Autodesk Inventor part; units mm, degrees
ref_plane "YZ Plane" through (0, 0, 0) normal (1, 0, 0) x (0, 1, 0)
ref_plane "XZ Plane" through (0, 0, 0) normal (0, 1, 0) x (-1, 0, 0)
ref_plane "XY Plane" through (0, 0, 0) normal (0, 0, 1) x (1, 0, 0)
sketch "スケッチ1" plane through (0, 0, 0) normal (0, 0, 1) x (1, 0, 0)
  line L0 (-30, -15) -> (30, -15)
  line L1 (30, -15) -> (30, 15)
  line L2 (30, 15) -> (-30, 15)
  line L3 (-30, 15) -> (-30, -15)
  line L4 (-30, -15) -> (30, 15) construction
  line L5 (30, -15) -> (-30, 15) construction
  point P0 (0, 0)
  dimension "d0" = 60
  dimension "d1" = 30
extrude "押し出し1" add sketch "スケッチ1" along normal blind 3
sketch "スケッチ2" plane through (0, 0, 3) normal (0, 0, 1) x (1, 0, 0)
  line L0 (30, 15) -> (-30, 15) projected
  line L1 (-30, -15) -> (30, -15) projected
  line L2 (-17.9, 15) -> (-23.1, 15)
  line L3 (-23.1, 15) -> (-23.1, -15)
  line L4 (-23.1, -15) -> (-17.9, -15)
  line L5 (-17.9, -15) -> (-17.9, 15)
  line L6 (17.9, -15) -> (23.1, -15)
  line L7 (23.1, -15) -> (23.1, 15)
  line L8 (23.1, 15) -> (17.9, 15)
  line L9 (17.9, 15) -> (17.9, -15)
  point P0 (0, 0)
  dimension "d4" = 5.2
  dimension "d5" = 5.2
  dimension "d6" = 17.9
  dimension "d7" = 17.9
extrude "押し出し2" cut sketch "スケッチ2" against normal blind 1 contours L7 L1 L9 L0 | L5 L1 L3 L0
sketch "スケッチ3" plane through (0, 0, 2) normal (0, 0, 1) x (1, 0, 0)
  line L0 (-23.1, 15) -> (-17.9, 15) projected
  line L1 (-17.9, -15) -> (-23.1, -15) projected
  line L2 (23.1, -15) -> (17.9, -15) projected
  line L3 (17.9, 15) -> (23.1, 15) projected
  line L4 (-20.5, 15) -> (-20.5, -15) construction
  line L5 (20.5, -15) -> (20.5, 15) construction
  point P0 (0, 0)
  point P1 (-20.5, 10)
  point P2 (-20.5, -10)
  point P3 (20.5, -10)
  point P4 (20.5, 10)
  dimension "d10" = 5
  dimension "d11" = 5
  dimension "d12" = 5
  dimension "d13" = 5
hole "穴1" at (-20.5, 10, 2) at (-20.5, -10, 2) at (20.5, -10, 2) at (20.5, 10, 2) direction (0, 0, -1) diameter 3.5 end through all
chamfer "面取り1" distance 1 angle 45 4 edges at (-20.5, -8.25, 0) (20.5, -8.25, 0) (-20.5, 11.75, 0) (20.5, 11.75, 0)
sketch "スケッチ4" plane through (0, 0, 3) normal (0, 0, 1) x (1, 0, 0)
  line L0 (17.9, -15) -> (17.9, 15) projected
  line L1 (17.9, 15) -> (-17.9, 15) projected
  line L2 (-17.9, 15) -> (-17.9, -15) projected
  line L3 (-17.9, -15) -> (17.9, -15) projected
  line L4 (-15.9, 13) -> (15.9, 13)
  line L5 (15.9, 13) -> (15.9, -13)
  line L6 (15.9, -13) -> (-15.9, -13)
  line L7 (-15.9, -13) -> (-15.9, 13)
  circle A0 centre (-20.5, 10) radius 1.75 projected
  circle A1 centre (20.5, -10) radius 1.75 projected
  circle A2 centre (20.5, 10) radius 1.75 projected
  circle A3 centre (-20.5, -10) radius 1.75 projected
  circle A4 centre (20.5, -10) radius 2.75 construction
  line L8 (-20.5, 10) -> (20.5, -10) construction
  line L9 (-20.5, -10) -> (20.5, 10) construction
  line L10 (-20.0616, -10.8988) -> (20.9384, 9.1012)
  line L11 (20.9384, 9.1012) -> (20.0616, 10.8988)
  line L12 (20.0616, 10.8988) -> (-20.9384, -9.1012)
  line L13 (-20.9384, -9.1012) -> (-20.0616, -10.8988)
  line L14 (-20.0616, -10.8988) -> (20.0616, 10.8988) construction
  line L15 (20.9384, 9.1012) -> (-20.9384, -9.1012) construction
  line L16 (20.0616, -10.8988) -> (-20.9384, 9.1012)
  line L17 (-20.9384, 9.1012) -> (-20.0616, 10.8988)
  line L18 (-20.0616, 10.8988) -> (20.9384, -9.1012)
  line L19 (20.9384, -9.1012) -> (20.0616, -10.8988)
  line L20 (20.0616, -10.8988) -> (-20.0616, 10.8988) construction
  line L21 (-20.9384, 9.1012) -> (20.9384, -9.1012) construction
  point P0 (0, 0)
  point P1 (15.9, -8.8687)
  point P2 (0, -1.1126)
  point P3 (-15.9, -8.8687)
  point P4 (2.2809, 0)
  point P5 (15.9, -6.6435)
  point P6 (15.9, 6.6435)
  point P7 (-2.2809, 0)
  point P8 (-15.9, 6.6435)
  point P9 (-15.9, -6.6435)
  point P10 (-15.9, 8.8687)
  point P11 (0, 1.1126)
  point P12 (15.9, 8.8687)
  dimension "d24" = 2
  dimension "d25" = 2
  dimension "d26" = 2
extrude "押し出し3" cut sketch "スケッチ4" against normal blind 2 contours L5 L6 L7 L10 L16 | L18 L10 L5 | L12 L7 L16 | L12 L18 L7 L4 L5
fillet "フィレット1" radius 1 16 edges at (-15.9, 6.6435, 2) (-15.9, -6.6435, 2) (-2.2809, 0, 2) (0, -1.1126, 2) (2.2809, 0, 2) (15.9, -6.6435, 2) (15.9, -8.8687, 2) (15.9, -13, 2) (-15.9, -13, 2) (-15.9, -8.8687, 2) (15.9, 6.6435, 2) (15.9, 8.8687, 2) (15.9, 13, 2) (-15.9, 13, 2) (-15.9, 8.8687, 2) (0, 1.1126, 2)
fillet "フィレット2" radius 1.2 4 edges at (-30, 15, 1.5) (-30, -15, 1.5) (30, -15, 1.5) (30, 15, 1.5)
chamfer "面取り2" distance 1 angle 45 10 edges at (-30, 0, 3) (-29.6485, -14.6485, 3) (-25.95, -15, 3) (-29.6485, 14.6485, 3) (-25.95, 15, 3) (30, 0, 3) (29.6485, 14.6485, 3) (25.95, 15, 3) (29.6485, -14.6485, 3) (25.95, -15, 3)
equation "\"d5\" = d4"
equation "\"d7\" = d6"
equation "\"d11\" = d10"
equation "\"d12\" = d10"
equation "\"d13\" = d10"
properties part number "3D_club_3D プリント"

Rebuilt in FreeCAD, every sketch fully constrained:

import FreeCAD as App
import Part
import Sketcher

V = App.Vector


def edges_at(feature, points):
    """Names of the edges that pass closest to the given points."""
    edges = feature.Shape.Edges
    near = lambda p: min(range(len(edges)), key=lambda i: edges[i].distToShape(Part.Vertex(*p))[0])
    return sorted({f"Edge{near(p) + 1}" for p in points})


def add_polygon(sketch, points):
    """Adds a closed chain of lines whose ends are joined by coincident constraints."""
    first, n = sketch.GeometryCount, len(points)
    for a, b in zip(points, points[1:] + points[:1]):
        sketch.addGeometry(Part.LineSegment(App.Vector(*a, 0), App.Vector(*b, 0)), False)
    for i in range(n):
        sketch.addConstraint(Sketcher.Constraint("Coincident", first + i, 2, first + (i + 1) % n, 1))

doc = App.newDocument("Part")
body = doc.addObject("PartDesign::Body", "Body")

sketch1 = body.newObject("Sketcher::SketchObject", "Sketch")
sketch1.AttachmentSupport = (doc.getObject("XY_Plane"), [""])
sketch1.MapMode = "FlatFace"
add_polygon(sketch1, [(-30, 15), (-30, -15), (30, -15), (30, 15)])
sketch1.addConstraint([
    Sketcher.Constraint("Vertical", 0),
    Sketcher.Constraint("Horizontal", 1),
    Sketcher.Constraint("Vertical", 2),
    Sketcher.Constraint("Horizontal", 3),
    Sketcher.Constraint("Symmetric", 0, 2, 2, 2, -1, 1),
    Sketcher.Constraint("DistanceX", 1, 1, 1, 2, 60.0),
    Sketcher.Constraint("DistanceY", 0, 2, 0, 1, 30.0),
])
pad1 = body.newObject("PartDesign::Pad", "Pad")
pad1.Profile = sketch1
pad1.Length = 3

sketch2 = body.newObject("Sketcher::SketchObject", "Sketch001")
sketch2.AttachmentSupport = (doc.getObject("XY_Plane"), [""])
sketch2.MapMode = "FlatFace"
sketch2.AttachmentOffset = App.Placement(V(0, 0, 3), App.Rotation())
add_polygon(sketch2, [(23, -15), (23, 15), (18, 15), (18, -15)])
add_polygon(sketch2, [(-18, -15), (-18, 15), (-23, 15), (-23, -15)])
sketch2.addConstraint([
    Sketcher.Constraint("Vertical", 0),
    Sketcher.Constraint("Horizontal", 1),
    Sketcher.Constraint("Vertical", 2),
    Sketcher.Constraint("Horizontal", 3),
    Sketcher.Constraint("Vertical", 4),
    Sketcher.Constraint("Horizontal", 5),
    Sketcher.Constraint("Vertical", 6),
    Sketcher.Constraint("Horizontal", 7),
    Sketcher.Constraint("Symmetric", 2, 2, 4, 2, -1, 1),
    Sketcher.Constraint("Symmetric", 0, 2, 6, 2, -1, 1),
    Sketcher.Constraint("Horizontal", 1, 2, 4, 2),
    Sketcher.Constraint("DistanceX", 1, 2, 1, 1, 5.2),
    Sketcher.Constraint("DistanceX", -1, 1, 1, 2, 17.9),
    Sketcher.Constraint("DistanceY", 0, 1, 0, 2, 30.0),
])
pocket1 = body.newObject("PartDesign::Pocket", "Pocket")
pocket1.Profile = sketch2
pocket1.Length = 1

sketch3 = body.newObject("Sketcher::SketchObject", "Sketch002")
sketch3.AttachmentSupport = (doc.getObject("XY_Plane"), [""])
sketch3.MapMode = "FlatFace"
sketch3.AttachmentOffset = App.Placement(V(0, 0, 2), App.Rotation())
sketch3.addGeometry([
    Part.Circle(V(-20.5, 10, 0), V(0, 0, 1), 1.8),
    Part.Circle(V(-20.5, -10, 0), V(0, 0, 1), 1.8),
    Part.Circle(V(20.5, -10, 0), V(0, 0, 1), 1.8),
    Part.Circle(V(20.5, 10, 0), V(0, 0, 1), 1.8),
], False)
sketch3.addConstraint([
    Sketcher.Constraint("Equal", 0, 1),
    Sketcher.Constraint("Equal", 1, 2),
    Sketcher.Constraint("Equal", 2, 3),
    Sketcher.Constraint("Symmetric", 0, 3, 2, 3, -1, 1),
    Sketcher.Constraint("Symmetric", 1, 3, 3, 3, -1, 1),
    Sketcher.Constraint("Symmetric", 1, 3, 2, 3, -2),
    Sketcher.Constraint("Diameter", 0, 3.5),
    Sketcher.Constraint("DistanceY", -1, 1, 0, 3, 10.0),
    Sketcher.Constraint("DistanceX", 1, 3, 2, 3, 41.0),
])
doc.recompute()
hole = body.newObject("PartDesign::Hole", "Hole")
hole.Profile = sketch3
hole.ThreadType = "None"
hole.Diameter = 3.5
hole.DepthType = "ThroughAll"
doc.recompute()

chamfer = body.newObject("PartDesign::Chamfer", "Chamfer")
chamfer.Base = (hole, edges_at(hole, [
    (-20.5, -8.25, 0),
    (20.5, -8.25, 0),
    (-20.5, 11.75, 0),
    (20.5, 11.75, 0),
]))
chamfer.Size = 1

sketch4 = body.newObject("Sketcher::SketchObject", "Sketch003")
sketch4.AttachmentSupport = (doc.getObject("XY_Plane"), [""])
sketch4.MapMode = "FlatFace"
sketch4.AttachmentOffset = App.Placement(V(0, 0, 3), App.Rotation())
add_polygon(sketch4, [(15.9, -13), (15.9, -8.9), (0, -1.1), (-15.9, -8.9), (-15.9, -13)])
add_polygon(sketch4, [(2.3, 0), (15.9, -6.6), (15.9, 6.6)])
add_polygon(sketch4, [(-15.9, -6.6), (-2.3, 0), (-15.9, 6.6)])
add_polygon(sketch4, [(0, 1.1), (15.9, 8.9), (15.9, 13), (-15.9, 13), (-15.9, 8.9)])
sketch4.addConstraint([
    Sketcher.Constraint("Vertical", 0),
    Sketcher.Constraint("Vertical", 3),
    Sketcher.Constraint("Horizontal", 4),
    Sketcher.Constraint("Vertical", 6),
    Sketcher.Constraint("Vertical", 10),
    Sketcher.Constraint("Vertical", 12),
    Sketcher.Constraint("Horizontal", 13),
    Sketcher.Constraint("Vertical", 14),
    Sketcher.Constraint("Symmetric", 7, 2, 8, 2, -1, 1),
    Sketcher.Constraint("Symmetric", 5, 2, 9, 2, -1, 1),
    Sketcher.Constraint("Symmetric", 2, 2, 11, 2, -1, 1),
    Sketcher.Constraint("Symmetric", 4, 2, 13, 2, -1, 1),
    Sketcher.Constraint("Symmetric", 1, 2, 15, 2, -1, 1),
    Sketcher.Constraint("Symmetric", 0, 2, 2, 2, -2),
    Sketcher.Constraint("PointOnObject", 1, 2, -2),
    Sketcher.Constraint("PointOnObject", 7, 2, -1),
    Sketcher.Constraint("Parallel", 1, 5),
    Sketcher.Constraint("Parallel", 2, 7),
    Sketcher.Constraint("Parallel", 7, 8),
    Sketcher.Constraint("Parallel", 9, 15),
    Sketcher.Constraint("Vertical", 4, 2, 5, 2),
    Sketcher.Constraint("DistanceX", 4, 1, 4, 2, 31.8),
    Sketcher.Constraint("DistanceY", 3, 2, -1, 1, 13.0),
    Sketcher.Constraint("DistanceY", 6, 1, 6, 2, 13.287),
    Sketcher.Constraint("Distance", 5, 15.153),
    Sketcher.Constraint("DistanceY", 0, 1, 0, 2, 4.1312),
])
pocket2 = body.newObject("PartDesign::Pocket", "Pocket001")
pocket2.Profile = sketch4
pocket2.Length = 2
doc.recompute()

fillet = body.newObject("PartDesign::Fillet", "Fillet")
fillet.Base = (pocket2, edges_at(pocket2, [
    (-15.9, 6.644, 2),
    (-15.9, -6.644, 2),
    (-2.281, 0, 2),
    (0, -1.113, 2),
    (2.281, 0, 2),
    (15.9, -6.644, 2),
    (15.9, -8.869, 2),
    (15.9, -13, 2),
    (-15.9, -13, 2),
    (-15.9, -8.869, 2),
    (15.9, 6.644, 2),
    (15.9, 8.869, 2),
    (15.9, 13, 2),
    (-15.9, 13, 2),
    (-15.9, 8.869, 2),
    (0, 1.113, 2),
]))
fillet.Radius = 1
doc.recompute()

fillet2 = body.newObject("PartDesign::Fillet", "Fillet001")
fillet2.Base = (fillet, edges_at(fillet, [
    (-30, 15, 1.5),
    (-30, -15, 1.5),
    (30, -15, 1.5),
    (30, 15, 1.5),
]))
fillet2.Radius = 1.2
doc.recompute()

chamfer2 = body.newObject("PartDesign::Chamfer", "Chamfer001")
chamfer2.Base = (fillet2, edges_at(fillet2, [
    (-30, 0, 3),
    (-29.648, -14.649, 3),
    (-25.95, -15, 3),
    (-29.648, 14.649, 3),
    (-25.95, 15, 3),
    (30, 0, 3),
    (29.648, 14.649, 3),
    (25.95, 15, 3),
    (29.648, -14.649, 3),
    (25.95, -15, 3),
]))
chamfer2.Size = 1

doc.recompute()
